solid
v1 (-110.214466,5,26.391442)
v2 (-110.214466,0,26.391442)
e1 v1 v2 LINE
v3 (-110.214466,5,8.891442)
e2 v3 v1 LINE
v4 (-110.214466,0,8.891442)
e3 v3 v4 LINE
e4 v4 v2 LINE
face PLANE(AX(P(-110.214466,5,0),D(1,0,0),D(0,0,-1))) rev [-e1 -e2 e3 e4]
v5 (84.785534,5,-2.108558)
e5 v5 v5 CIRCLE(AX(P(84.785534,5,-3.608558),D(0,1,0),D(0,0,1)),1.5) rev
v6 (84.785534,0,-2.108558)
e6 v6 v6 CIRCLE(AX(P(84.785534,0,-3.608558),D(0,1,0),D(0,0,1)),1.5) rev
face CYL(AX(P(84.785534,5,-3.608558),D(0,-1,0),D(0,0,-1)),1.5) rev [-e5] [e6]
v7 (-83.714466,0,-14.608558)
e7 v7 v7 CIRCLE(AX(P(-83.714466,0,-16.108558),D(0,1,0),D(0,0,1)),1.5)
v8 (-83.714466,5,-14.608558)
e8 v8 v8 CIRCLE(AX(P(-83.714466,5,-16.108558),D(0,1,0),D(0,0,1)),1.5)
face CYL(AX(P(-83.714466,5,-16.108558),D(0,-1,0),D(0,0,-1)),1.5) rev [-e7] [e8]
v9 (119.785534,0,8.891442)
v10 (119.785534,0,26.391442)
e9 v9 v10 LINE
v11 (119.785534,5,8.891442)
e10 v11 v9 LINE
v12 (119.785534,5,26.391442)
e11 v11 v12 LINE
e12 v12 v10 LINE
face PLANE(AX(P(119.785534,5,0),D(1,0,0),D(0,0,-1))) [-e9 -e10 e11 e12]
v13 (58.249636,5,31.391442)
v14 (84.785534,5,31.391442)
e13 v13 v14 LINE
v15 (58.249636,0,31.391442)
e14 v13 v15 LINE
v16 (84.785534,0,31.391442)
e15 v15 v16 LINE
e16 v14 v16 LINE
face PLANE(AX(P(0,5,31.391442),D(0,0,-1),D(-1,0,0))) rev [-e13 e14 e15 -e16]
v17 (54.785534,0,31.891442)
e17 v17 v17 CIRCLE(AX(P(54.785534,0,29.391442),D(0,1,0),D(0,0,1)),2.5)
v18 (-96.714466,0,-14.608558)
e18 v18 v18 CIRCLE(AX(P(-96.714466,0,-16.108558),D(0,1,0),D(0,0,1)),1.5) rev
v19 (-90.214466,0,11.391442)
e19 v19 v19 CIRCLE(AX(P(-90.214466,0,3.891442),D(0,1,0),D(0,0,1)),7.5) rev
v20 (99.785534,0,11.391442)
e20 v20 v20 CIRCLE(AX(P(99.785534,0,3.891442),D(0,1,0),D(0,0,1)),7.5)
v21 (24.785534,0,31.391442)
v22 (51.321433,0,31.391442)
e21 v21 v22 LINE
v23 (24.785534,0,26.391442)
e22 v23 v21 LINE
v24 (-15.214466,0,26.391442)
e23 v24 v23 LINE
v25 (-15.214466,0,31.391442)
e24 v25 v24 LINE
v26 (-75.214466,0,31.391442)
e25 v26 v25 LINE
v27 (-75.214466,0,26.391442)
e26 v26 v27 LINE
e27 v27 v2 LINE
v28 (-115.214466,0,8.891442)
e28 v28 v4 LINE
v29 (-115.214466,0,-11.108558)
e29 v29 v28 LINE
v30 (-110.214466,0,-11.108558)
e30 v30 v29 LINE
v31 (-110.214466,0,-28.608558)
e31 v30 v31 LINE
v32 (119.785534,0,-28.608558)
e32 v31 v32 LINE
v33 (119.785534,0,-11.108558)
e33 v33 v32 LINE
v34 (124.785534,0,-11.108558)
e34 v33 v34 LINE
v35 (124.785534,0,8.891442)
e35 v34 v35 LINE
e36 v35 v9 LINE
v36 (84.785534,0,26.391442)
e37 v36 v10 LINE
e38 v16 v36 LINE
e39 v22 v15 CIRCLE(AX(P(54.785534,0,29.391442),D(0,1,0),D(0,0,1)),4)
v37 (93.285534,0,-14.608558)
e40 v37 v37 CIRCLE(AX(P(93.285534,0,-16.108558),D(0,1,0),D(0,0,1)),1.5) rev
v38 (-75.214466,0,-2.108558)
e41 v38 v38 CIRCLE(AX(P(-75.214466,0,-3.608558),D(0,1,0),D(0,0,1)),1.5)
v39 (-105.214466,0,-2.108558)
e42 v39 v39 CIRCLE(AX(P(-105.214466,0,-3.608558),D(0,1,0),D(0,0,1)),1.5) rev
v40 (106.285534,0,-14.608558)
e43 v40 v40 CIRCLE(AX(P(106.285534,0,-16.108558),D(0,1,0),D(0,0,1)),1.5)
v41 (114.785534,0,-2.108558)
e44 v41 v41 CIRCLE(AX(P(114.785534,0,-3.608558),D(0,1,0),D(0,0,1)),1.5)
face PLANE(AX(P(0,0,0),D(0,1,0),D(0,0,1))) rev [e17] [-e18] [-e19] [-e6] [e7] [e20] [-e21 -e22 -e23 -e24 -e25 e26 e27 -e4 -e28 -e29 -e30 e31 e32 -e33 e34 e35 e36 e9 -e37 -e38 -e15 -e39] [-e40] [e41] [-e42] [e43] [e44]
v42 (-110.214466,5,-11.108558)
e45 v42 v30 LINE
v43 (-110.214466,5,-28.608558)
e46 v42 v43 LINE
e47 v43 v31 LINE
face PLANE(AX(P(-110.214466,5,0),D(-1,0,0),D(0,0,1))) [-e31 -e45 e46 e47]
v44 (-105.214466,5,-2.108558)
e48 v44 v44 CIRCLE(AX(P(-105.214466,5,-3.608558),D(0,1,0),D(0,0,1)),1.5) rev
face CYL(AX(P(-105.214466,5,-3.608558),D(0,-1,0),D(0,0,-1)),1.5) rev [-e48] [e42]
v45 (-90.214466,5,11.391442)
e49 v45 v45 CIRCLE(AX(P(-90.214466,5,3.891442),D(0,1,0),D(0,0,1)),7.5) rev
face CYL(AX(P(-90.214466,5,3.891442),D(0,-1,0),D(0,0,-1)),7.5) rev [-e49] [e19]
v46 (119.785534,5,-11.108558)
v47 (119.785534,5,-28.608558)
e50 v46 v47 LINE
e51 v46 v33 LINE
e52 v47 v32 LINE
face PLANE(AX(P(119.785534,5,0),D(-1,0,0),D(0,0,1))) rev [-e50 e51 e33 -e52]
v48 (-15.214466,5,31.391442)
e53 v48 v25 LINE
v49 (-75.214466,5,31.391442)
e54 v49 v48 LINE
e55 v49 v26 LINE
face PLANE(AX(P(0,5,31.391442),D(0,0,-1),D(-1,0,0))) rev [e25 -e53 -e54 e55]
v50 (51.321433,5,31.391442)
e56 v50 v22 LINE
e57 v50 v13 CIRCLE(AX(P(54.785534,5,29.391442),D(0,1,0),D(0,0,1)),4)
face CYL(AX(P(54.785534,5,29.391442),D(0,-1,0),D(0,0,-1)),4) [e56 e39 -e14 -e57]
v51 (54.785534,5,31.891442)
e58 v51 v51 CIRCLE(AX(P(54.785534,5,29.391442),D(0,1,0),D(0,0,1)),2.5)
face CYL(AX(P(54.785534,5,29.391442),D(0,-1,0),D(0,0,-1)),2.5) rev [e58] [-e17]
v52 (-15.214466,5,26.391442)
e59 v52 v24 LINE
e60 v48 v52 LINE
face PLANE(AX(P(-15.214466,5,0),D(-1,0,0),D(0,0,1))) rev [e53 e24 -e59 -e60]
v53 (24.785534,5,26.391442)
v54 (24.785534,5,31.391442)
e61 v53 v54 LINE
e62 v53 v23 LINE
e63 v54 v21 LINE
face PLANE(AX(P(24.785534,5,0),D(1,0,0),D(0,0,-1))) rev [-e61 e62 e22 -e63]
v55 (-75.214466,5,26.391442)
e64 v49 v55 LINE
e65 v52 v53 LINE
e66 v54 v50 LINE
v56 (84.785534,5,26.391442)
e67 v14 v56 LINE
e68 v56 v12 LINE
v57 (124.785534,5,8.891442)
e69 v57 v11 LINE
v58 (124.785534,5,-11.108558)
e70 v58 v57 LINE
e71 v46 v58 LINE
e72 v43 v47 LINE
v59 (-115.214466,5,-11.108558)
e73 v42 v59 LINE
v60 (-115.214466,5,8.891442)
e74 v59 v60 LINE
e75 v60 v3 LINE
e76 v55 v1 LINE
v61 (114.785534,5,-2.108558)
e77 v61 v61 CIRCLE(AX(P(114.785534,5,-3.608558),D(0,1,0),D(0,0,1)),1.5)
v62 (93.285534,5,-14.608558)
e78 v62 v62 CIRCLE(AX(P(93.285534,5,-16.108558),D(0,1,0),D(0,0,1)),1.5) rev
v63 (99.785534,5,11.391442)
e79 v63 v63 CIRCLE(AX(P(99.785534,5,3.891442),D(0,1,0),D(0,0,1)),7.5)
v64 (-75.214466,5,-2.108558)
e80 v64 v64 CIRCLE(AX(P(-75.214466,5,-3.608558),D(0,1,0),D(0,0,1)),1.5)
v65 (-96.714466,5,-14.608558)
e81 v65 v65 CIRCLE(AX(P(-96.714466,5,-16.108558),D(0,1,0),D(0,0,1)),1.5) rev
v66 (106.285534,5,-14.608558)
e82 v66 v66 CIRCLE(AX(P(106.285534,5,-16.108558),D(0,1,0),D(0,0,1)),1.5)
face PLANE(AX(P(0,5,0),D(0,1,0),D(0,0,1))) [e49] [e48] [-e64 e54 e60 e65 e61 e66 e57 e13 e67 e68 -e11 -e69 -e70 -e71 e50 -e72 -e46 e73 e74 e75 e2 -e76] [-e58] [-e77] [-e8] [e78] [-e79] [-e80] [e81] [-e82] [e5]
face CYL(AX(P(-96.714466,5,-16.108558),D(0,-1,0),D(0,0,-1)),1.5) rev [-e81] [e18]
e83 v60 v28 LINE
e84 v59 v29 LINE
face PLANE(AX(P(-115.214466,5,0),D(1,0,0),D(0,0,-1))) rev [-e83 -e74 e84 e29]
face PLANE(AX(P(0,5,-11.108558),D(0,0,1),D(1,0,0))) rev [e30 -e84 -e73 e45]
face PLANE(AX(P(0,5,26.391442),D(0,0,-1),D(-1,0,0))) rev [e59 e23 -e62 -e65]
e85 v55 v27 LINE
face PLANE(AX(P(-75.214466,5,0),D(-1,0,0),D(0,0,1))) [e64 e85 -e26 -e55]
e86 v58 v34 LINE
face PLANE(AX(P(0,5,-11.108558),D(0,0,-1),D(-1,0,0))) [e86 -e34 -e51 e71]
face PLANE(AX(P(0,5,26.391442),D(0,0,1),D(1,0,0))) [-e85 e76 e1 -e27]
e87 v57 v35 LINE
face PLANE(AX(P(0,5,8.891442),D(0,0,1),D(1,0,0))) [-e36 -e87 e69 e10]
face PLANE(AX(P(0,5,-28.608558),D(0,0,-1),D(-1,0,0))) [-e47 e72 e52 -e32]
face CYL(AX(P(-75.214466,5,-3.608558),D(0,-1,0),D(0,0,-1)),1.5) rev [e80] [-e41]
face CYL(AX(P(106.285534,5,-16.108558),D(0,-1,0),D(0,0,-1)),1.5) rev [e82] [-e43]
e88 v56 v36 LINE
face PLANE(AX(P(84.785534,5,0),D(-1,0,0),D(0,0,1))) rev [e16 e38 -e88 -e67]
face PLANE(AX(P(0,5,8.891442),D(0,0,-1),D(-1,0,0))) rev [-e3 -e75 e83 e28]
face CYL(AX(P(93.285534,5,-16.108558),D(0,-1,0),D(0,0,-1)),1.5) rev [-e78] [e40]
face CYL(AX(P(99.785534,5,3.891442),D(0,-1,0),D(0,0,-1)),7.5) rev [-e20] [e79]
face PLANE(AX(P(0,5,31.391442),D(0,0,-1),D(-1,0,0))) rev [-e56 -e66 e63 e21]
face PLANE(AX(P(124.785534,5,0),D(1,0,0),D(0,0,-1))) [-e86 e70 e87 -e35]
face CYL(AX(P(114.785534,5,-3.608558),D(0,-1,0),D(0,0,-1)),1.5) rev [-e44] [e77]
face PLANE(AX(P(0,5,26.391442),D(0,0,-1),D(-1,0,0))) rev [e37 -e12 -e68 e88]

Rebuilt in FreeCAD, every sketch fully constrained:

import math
import FreeCAD as App
import Part
import Sketcher

V = App.Vector
Q = App.Units.Quantity

doc = App.newDocument("Part")
body = doc.addObject("PartDesign::Body", "Body")

sketch1 = doc.addObject("Sketcher::SketchObject", "Sketch")
body.addObject(sketch1)
sketch1.AttachmentSupport = (doc.XZ_Plane, [""])
sketch1.MapMode = "FlatFace"
sketch1.addGeometry([
    Part.LineSegment(V(-75.2, 26.4, 0), V(-75.2, 31.4, 0)),
    Part.LineSegment(V(-75.2, 31.4, 0), V(-15.2, 31.4, 0)),
    Part.LineSegment(V(-15.2, 31.4, 0), V(-15.2, 26.4, 0)),
    Part.LineSegment(V(-15.2, 26.4, 0), V(24.8, 26.4, 0)),
    Part.LineSegment(V(24.8, 26.4, 0), V(24.8, 31.4, 0)),
    Part.LineSegment(V(24.8, 31.4, 0), V(51.3, 31.4, 0)),
    Part.ArcOfCircle(Part.Circle(V(54.8, 29.4, 0), V(0, 0, 1), 4), math.radians(30), math.radians(150)),
    Part.LineSegment(V(58.2, 31.4, 0), V(84.8, 31.4, 0)),
    Part.LineSegment(V(84.8, 31.4, 0), V(84.8, 26.4, 0)),
    Part.LineSegment(V(84.8, 26.4, 0), V(119.8, 26.4, 0)),
    Part.LineSegment(V(119.8, 26.4, 0), V(119.8, 8.9, 0)),
    Part.LineSegment(V(119.8, 8.9, 0), V(124.8, 8.9, 0)),
    Part.LineSegment(V(124.8, 8.9, 0), V(124.8, -11.1, 0)),
    Part.LineSegment(V(124.8, -11.1, 0), V(119.8, -11.1, 0)),
    Part.LineSegment(V(119.8, -11.1, 0), V(119.8, -28.6, 0)),
    Part.LineSegment(V(119.8, -28.6, 0), V(-110.2, -28.6, 0)),
    Part.LineSegment(V(-110.2, -28.6, 0), V(-110.2, -11.1, 0)),
    Part.LineSegment(V(-110.2, -11.1, 0), V(-115.2, -11.1, 0)),
    Part.LineSegment(V(-115.2, -11.1, 0), V(-115.2, 8.9, 0)),
    Part.LineSegment(V(-115.2, 8.9, 0), V(-110.2, 8.9, 0)),
    Part.LineSegment(V(-110.2, 8.9, 0), V(-110.2, 26.4, 0)),
    Part.LineSegment(V(-110.2, 26.4, 0), V(-75.2, 26.4, 0)),
    Part.Circle(V(54.8, 29.4, 0), V(0, 0, 1), 2.5),
    Part.Circle(V(-90.2, 3.9, 0), V(0, 0, 1), 7.5),
    Part.Circle(V(-105.2, -3.6, 0), V(0, 0, 1), 1.5),
    Part.Circle(V(-75.2, -3.6, 0), V(0, 0, 1), 1.5),
    Part.Circle(V(-96.7, -16.1, 0), V(0, 0, 1), 1.5),
    Part.Circle(V(-83.7, -16.1, 0), V(0, 0, 1), 1.5),
    Part.Circle(V(99.8, 3.9, 0), V(0, 0, 1), 7.5),
    Part.Circle(V(84.8, -3.6, 0), V(0, 0, 1), 1.5),
    Part.Circle(V(114.8, -3.6, 0), V(0, 0, 1), 1.5),
    Part.Circle(V(93.3, -16.1, 0), V(0, 0, 1), 1.5),
    Part.Circle(V(106.3, -16.1, 0), V(0, 0, 1), 1.5),
], False)
sketch1.addConstraint([
    Sketcher.Constraint("Coincident", 0, 2, 1, 1),
    Sketcher.Constraint("Coincident", 1, 2, 2, 1),
    Sketcher.Constraint("Coincident", 2, 2, 3, 1),
    Sketcher.Constraint("Coincident", 3, 2, 4, 1),
    Sketcher.Constraint("Coincident", 4, 2, 5, 1),
    Sketcher.Constraint("Coincident", 5, 2, 6, 2),
    Sketcher.Constraint("Coincident", 6, 1, 7, 1),
    Sketcher.Constraint("Coincident", 7, 2, 8, 1),
    Sketcher.Constraint("Coincident", 8, 2, 9, 1),
    Sketcher.Constraint("Coincident", 9, 2, 10, 1),
    Sketcher.Constraint("Coincident", 10, 2, 11, 1),
    Sketcher.Constraint("Coincident", 11, 2, 12, 1),
    Sketcher.Constraint("Coincident", 12, 2, 13, 1),
    Sketcher.Constraint("Coincident", 13, 2, 14, 1),
    Sketcher.Constraint("Coincident", 14, 2, 15, 1),
    Sketcher.Constraint("Coincident", 15, 2, 16, 1),
    Sketcher.Constraint("Coincident", 16, 2, 17, 1),
    Sketcher.Constraint("Coincident", 17, 2, 18, 1),
    Sketcher.Constraint("Coincident", 18, 2, 19, 1),
    Sketcher.Constraint("Coincident", 19, 2, 20, 1),
    Sketcher.Constraint("Coincident", 20, 2, 21, 1),
    Sketcher.Constraint("Coincident", 21, 2, 0, 1),
    Sketcher.Constraint("Vertical", 0),
    Sketcher.Constraint("Horizontal", 1),
    Sketcher.Constraint("Vertical", 2),
    Sketcher.Constraint("Horizontal", 3),
    Sketcher.Constraint("Vertical", 4),
    Sketcher.Constraint("Horizontal", 5),
    Sketcher.Constraint("Horizontal", 7),
    Sketcher.Constraint("Vertical", 8),
    Sketcher.Constraint("Horizontal", 9),
    Sketcher.Constraint("Vertical", 10),
    Sketcher.Constraint("Horizontal", 11),
    Sketcher.Constraint("Vertical", 12),
    Sketcher.Constraint("Horizontal", 13),
    Sketcher.Constraint("Vertical", 14),
    Sketcher.Constraint("Horizontal", 15),
    Sketcher.Constraint("Vertical", 16),
    Sketcher.Constraint("Horizontal", 17),
    Sketcher.Constraint("Vertical", 18),
    Sketcher.Constraint("Horizontal", 19),
    Sketcher.Constraint("Vertical", 20),
    Sketcher.Constraint("Horizontal", 21),
    Sketcher.Constraint("Coincident", 22, 3, 6, 3),
    Sketcher.Constraint("Equal", 24, 25),
    Sketcher.Constraint("Equal", 25, 26),
    Sketcher.Constraint("Equal", 26, 27),
    Sketcher.Constraint("Equal", 23, 28),
    Sketcher.Constraint("Equal", 27, 29),
    Sketcher.Constraint("Equal", 29, 30),
    Sketcher.Constraint("Equal", 30, 31),
    Sketcher.Constraint("Equal", 31, 32),
    Sketcher.Constraint("Horizontal", 24, 3, 25, 3),
    Sketcher.Constraint("Horizontal", 26, 3, 27, 3),
    Sketcher.Constraint("Horizontal", 23, 3, 28, 3),
    Sketcher.Constraint("Horizontal", 25, 3, 29, 3),
    Sketcher.Constraint("Horizontal", 29, 3, 30, 3),
    Sketcher.Constraint("Horizontal", 27, 3, 31, 3),
    Sketcher.Constraint("Horizontal", 31, 3, 32, 3),
    Sketcher.Constraint("Horizontal", 1, 2, 4, 2),
    Sketcher.Constraint("Horizontal", 5, 2, 6, 1),
    Sketcher.Constraint("Horizontal", 3, 2, 8, 2),
    Sketcher.Constraint("Horizontal", 13, 2, 16, 2),
    Sketcher.Constraint("Horizontal", 11, 2, 18, 2),
    Sketcher.Constraint("Horizontal", 9, 2, 20, 2),
    Sketcher.Constraint("Vertical", 25, 3, 0, 2),
    Sketcher.Constraint("Vertical", 29, 3, 7, 2),
    Sketcher.Constraint("Vertical", 10, 2, 13, 2),
    Sketcher.Constraint("Vertical", 16, 2, 19, 2),
    Sketcher.Constraint("Equal", 5, 7),
    Sketcher.Constraint("Equal", 13, 17),
    Sketcher.Constraint("Equal", 9, 21),
    Sketcher.Constraint("Equal", 19, 0),
    Sketcher.Constraint("Equal", 10, 14),
    Sketcher.Constraint("Diameter", 22, Q("5 mm")),
    Sketcher.Constraint("Diameter", 23, Q("15 mm")),
    Sketcher.Constraint("Diameter", 24, Q("3 mm")),
    Sketcher.Constraint("Radius", 6, Q("4 mm")),
    Sketcher.Constraint("DistanceX", 1, 1, 1, 2, Q("60 mm")),
    Sketcher.Constraint("DistanceX", 3, 1, 3, 2, Q("40 mm")),
    Sketcher.Constraint("DistanceX", 9, 1, 9, 2, Q("35 mm")),
    Sketcher.Constraint("DistanceX", 11, 1, 11, 2, Q("5 mm")),
    Sketcher.Constraint("DistanceX", 15, 2, 15, 1, Q("230 mm")),
    Sketcher.Constraint("DistanceY", 12, 2, 12, 1, Q("20 mm")),
    Sketcher.Constraint("DistanceY", 10, 2, 10, 1, Q("17.5 mm")),
    Sketcher.Constraint("DistanceX", 23, 3, 6, 3, Q("145 mm")),
    Sketcher.Constraint("DistanceX", 24, 3, 23, 3, Q("15 mm")),
    Sketcher.Constraint("DistanceY", 24, 3, 6, 3, Q("33 mm")),
    Sketcher.Constraint("DistanceY", 26, 3, 23, 3, Q("20 mm")),
    Sketcher.Constraint("DistanceX", 26, 3, 27, 3, Q("13 mm")),
    Sketcher.Constraint("DistanceX", 6, 3, 28, 3, Q("45 mm")),
    Sketcher.Constraint("DistanceX", 28, 3, 30, 3, Q("15 mm")),
    Sketcher.Constraint("DistanceX", 31, 3, 32, 3, Q("13 mm")),
    Sketcher.Constraint("DistanceY", 25, 3, 0, 2, Q("35 mm")),
    Sketcher.Constraint("DistanceY", 28, 3, 10, 2, Q("5 mm")),
    Sketcher.Constraint("DistanceX", 24, 3, 26, 3, Q("8.5 mm")),
    Sketcher.Constraint("DistanceX", 29, 3, 31, 3, Q("8.5 mm")),
    Sketcher.Constraint("DistanceY", -1, 1, 6, 3, Q("29.391442 mm")),
    Sketcher.Constraint("DistanceX", -1, 1, 6, 3, Q("54.785534 mm")),
])
pad1 = doc.addObject("PartDesign::Pad", "Pad")
body.addObject(pad1)
pad1.Profile = sketch1
pad1.Length = 5
pad1.Reversed = True

doc.recompute()
